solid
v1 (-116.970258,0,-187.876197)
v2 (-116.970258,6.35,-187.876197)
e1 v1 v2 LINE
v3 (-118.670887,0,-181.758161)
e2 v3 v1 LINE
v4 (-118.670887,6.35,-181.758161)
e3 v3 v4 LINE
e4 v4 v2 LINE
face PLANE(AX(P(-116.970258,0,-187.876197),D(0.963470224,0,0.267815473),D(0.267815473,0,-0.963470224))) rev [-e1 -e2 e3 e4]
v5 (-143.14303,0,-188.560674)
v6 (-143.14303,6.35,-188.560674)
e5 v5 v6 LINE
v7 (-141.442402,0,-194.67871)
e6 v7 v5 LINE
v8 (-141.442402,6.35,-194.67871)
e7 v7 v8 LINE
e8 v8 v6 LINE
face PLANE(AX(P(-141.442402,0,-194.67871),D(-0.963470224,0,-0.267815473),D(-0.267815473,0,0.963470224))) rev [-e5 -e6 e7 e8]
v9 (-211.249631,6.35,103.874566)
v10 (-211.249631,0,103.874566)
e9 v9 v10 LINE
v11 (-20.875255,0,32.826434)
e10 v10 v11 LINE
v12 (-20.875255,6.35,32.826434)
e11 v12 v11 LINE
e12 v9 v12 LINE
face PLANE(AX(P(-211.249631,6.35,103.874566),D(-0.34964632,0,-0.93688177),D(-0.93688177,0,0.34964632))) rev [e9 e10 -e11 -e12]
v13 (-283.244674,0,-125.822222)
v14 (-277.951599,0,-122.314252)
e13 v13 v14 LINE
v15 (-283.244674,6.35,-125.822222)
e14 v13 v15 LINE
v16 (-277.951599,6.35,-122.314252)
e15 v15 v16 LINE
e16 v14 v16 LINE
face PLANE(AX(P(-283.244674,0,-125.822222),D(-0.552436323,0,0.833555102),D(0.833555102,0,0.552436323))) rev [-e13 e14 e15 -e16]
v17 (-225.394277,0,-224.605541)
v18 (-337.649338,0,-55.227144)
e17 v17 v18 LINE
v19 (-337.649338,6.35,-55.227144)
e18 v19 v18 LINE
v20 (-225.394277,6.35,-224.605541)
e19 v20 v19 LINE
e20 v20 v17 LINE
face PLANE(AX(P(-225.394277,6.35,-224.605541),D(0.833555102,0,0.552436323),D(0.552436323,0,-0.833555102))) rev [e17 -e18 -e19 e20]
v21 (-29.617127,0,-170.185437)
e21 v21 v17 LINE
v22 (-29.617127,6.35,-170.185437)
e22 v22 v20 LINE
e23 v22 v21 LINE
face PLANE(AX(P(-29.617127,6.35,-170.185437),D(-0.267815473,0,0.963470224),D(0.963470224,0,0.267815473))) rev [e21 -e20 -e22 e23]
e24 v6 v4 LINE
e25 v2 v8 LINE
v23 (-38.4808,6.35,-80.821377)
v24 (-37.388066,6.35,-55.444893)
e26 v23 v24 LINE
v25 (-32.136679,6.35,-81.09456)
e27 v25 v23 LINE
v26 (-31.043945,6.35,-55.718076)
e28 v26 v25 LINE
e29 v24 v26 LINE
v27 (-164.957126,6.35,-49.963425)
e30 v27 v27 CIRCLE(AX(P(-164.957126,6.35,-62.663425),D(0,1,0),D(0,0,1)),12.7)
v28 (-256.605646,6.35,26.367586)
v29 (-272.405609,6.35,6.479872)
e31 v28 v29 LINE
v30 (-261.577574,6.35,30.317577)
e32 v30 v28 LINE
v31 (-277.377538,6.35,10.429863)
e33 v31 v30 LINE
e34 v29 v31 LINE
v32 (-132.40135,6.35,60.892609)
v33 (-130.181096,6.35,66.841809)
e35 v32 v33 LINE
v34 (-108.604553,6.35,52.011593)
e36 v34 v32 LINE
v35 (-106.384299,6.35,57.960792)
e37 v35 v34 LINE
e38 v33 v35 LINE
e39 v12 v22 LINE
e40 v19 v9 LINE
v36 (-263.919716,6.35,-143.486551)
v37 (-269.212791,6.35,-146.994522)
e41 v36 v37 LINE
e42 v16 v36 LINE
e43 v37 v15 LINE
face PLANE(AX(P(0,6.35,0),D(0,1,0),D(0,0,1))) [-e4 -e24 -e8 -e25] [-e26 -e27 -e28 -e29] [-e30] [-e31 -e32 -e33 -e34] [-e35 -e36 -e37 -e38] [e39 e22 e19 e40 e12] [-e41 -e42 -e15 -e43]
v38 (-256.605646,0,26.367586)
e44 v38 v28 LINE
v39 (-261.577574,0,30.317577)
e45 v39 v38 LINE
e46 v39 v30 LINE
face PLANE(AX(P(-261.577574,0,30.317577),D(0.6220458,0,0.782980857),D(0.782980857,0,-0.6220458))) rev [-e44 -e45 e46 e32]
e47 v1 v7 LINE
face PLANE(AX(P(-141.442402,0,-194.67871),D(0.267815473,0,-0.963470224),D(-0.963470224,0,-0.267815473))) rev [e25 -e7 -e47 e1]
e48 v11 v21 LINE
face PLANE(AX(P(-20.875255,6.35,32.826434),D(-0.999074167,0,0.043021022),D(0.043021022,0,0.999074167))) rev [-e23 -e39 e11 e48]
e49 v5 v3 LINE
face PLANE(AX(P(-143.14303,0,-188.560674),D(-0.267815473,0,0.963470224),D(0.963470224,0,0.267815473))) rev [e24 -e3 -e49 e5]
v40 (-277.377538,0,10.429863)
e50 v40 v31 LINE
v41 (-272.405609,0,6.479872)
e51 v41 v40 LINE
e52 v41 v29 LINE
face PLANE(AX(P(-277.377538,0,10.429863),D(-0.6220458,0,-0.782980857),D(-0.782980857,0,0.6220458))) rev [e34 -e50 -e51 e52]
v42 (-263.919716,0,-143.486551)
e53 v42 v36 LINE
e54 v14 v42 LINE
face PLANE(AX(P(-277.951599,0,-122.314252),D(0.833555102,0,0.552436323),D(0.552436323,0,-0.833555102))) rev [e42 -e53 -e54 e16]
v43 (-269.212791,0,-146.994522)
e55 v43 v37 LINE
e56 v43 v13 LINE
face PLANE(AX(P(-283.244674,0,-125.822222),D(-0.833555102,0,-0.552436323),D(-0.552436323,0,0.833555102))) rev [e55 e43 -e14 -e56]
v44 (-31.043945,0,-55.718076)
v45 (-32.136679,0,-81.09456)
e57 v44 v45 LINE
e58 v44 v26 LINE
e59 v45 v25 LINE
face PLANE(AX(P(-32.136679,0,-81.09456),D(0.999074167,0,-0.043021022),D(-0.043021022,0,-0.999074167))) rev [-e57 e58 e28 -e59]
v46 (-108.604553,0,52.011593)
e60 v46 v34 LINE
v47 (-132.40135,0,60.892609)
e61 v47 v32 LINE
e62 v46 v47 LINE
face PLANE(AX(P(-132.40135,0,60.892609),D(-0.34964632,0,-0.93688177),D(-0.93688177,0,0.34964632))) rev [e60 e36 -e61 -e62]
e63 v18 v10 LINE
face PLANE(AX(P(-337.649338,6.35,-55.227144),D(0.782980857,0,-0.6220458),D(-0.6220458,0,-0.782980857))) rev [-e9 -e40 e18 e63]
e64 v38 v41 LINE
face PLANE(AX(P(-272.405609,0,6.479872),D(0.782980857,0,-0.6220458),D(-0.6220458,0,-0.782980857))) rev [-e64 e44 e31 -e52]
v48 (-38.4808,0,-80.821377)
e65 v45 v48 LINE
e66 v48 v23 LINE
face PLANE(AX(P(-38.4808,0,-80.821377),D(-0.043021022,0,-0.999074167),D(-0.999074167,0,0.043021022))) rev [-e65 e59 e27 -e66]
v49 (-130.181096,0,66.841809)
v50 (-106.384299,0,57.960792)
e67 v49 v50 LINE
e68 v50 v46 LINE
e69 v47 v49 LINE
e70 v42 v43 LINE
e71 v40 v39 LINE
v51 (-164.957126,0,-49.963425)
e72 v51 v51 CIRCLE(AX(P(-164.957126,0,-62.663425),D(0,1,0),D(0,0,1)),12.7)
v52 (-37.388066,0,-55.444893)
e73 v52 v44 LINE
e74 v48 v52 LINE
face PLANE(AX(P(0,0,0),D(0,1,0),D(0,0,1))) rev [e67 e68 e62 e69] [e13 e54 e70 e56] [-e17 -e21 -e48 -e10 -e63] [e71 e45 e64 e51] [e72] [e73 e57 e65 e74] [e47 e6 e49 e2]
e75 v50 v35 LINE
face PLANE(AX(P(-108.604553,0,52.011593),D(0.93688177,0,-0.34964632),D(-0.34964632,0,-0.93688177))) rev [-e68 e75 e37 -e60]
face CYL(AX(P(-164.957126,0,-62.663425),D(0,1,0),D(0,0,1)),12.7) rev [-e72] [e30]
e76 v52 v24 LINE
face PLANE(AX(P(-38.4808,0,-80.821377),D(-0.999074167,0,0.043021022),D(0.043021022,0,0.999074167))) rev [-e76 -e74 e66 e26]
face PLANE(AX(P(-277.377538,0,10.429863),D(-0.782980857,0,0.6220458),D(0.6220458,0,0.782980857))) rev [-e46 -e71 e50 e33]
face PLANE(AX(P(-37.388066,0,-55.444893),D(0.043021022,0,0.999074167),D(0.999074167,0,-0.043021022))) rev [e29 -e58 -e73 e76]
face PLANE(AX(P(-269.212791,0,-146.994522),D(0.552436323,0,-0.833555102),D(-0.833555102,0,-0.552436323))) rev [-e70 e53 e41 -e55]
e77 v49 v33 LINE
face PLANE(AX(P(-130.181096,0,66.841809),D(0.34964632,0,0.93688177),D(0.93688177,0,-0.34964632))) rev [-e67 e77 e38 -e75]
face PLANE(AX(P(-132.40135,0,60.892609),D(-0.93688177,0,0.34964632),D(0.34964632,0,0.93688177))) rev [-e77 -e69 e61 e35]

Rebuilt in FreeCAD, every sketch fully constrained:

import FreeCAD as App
import Part
import Sketcher
from FreeCAD import Vector
Q = App.Units.Quantity

doc = App.newDocument("Part")
body = doc.addObject("PartDesign::Body", "Body")

sketch1 = body.newObject("Sketcher::SketchObject", "Sketch")
sketch1.AttachmentSupport = (doc.getObject("XZ_Plane"), [""])
sketch1.MapMode = "FlatFace"
sketch1.addGeometry(Part.LineSegment(Vector(-21, 33, 0), Vector(-30, -170, 0)), False)
sketch1.addGeometry(Part.LineSegment(Vector(-30, -170, 0), Vector(-225, -225, 0)), False)
sketch1.addGeometry(Part.LineSegment(Vector(-225, -225, 0), Vector(-338, -55, 0)), False)
sketch1.addGeometry(Part.LineSegment(Vector(-338, -55, 0), Vector(-211, 104, 0)), False)
sketch1.addGeometry(Part.LineSegment(Vector(-211, 104, 0), Vector(-21, 33, 0)), False)
sketch1.addConstraint(Sketcher.Constraint("Coincident", 0, 2, 1, 1))
sketch1.addConstraint(Sketcher.Constraint("Coincident", 1, 2, 2, 1))
sketch1.addConstraint(Sketcher.Constraint("Coincident", 2, 2, 3, 1))
sketch1.addConstraint(Sketcher.Constraint("Coincident", 3, 2, 4, 1))
sketch1.addConstraint(Sketcher.Constraint("Coincident", 4, 2, 0, 1))
sketch1.addConstraint(Sketcher.Constraint("Equal", 0, 1))
sketch1.addConstraint(Sketcher.Constraint("Equal", 1, 2))
sketch1.addConstraint(Sketcher.Constraint("Equal", 2, 3))
sketch1.addConstraint(Sketcher.Constraint("Equal", 3, 4))
sketch1.addConstraint(Sketcher.Constraint("Distance", 0, Q("8 in")))
sketch1.addConstraint(Sketcher.Constraint("DistanceY", 1, 2, -1, 1, Q("224.605541 mm")))
sketch1.addConstraint(Sketcher.Constraint("DistanceX", 3, 2, -1, 1, Q("211.249631 mm")))
sketch1.addConstraint(Sketcher.Constraint("DistanceX", 1, 2, 0, 2, Q("195.77715 mm")))
sketch1.addConstraint(Sketcher.Constraint("DistanceX", 2, 2, 1, 2, Q("112.255061 mm")))
sketch1.addConstraint(Sketcher.Constraint("DistanceY", 2, 2, 3, 2, Q("159.10171 mm")))
pad1 = body.newObject("PartDesign::Pad", "Pad")
pad1.Profile = sketch1
pad1.Length = Q("0.25 in")
pad1.Reversed = True

sketch2 = body.newObject("Sketcher::SketchObject", "Sketch001")
sketch2.AttachmentSupport = (doc.getObject("XZ_Plane"), [""])
sketch2.MapMode = "FlatFace"
sketch2.AttachmentOffset = App.Placement(Vector(0, 0, -0.25 * 25.4), App.Rotation())
sketch2.addGeometry(Part.LineSegment(Vector(-109, 52, 0), Vector(-132, 61, 0)), False)
sketch2.addGeometry(Part.LineSegment(Vector(-132, 61, 0), Vector(-130, 67, 0)), False)
sketch2.addGeometry(Part.LineSegment(Vector(-130, 67, 0), Vector(-106, 58, 0)), False)
sketch2.addGeometry(Part.LineSegment(Vector(-106, 58, 0), Vector(-109, 52, 0)), False)
sketch2.addGeometry(Part.LineSegment(Vector(-277, 10, 0), Vector(-262, 30, 0)), False)
sketch2.addGeometry(Part.LineSegment(Vector(-262, 30, 0), Vector(-257, 26, 0)), False)
sketch2.addGeometry(Part.LineSegment(Vector(-257, 26, 0), Vector(-272, 6, 0)), False)
sketch2.addGeometry(Part.LineSegment(Vector(-272, 6, 0), Vector(-277, 10, 0)), False)
sketch2.addGeometry(Part.LineSegment(Vector(-283, -126, 0), Vector(-278, -122, 0)), False)
sketch2.addGeometry(Part.LineSegment(Vector(-278, -122, 0), Vector(-264, -143, 0)), False)
sketch2.addGeometry(Part.LineSegment(Vector(-264, -143, 0), Vector(-269, -147, 0)), False)
sketch2.addGeometry(Part.LineSegment(Vector(-269, -147, 0), Vector(-283, -126, 0)), False)
sketch2.addGeometry(Part.LineSegment(Vector(-117, -188, 0), Vector(-141, -195, 0)), False)
sketch2.addGeometry(Part.LineSegment(Vector(-141, -195, 0), Vector(-143, -189, 0)), False)
sketch2.addGeometry(Part.LineSegment(Vector(-143, -189, 0), Vector(-119, -182, 0)), False)
sketch2.addGeometry(Part.LineSegment(Vector(-119, -182, 0), Vector(-117, -188, 0)), False)
sketch2.addGeometry(Part.LineSegment(Vector(-32, -81, 0), Vector(-38, -81, 0)), False)
sketch2.addGeometry(Part.LineSegment(Vector(-38, -81, 0), Vector(-37, -55, 0)), False)
sketch2.addGeometry(Part.LineSegment(Vector(-37, -55, 0), Vector(-31, -56, 0)), False)
sketch2.addGeometry(Part.LineSegment(Vector(-31, -56, 0), Vector(-32, -81, 0)), False)
sketch2.addConstraint(Sketcher.Constraint("Coincident", 0, 2, 1, 1))
sketch2.addConstraint(Sketcher.Constraint("Coincident", 1, 2, 2, 1))
sketch2.addConstraint(Sketcher.Constraint("Coincident", 2, 2, 3, 1))
sketch2.addConstraint(Sketcher.Constraint("Coincident", 3, 2, 0, 1))
sketch2.addConstraint(Sketcher.Constraint("Coincident", 4, 2, 5, 1))
sketch2.addConstraint(Sketcher.Constraint("Coincident", 5, 2, 6, 1))
sketch2.addConstraint(Sketcher.Constraint("Coincident", 6, 2, 7, 1))
sketch2.addConstraint(Sketcher.Constraint("Coincident", 7, 2, 4, 1))
sketch2.addConstraint(Sketcher.Constraint("Coincident", 8, 2, 9, 1))
sketch2.addConstraint(Sketcher.Constraint("Coincident", 9, 2, 10, 1))
sketch2.addConstraint(Sketcher.Constraint("Coincident", 10, 2, 11, 1))
sketch2.addConstraint(Sketcher.Constraint("Coincident", 11, 2, 8, 1))
sketch2.addConstraint(Sketcher.Constraint("Coincident", 12, 2, 13, 1))
sketch2.addConstraint(Sketcher.Constraint("Coincident", 13, 2, 14, 1))
sketch2.addConstraint(Sketcher.Constraint("Coincident", 14, 2, 15, 1))
sketch2.addConstraint(Sketcher.Constraint("Coincident", 15, 2, 12, 1))
sketch2.addConstraint(Sketcher.Constraint("Coincident", 16, 2, 17, 1))
sketch2.addConstraint(Sketcher.Constraint("Coincident", 17, 2, 18, 1))
sketch2.addConstraint(Sketcher.Constraint("Coincident", 18, 2, 19, 1))
sketch2.addConstraint(Sketcher.Constraint("Coincident", 19, 2, 16, 1))
sketch2.addConstraint(Sketcher.Constraint("Perpendicular", 0, 1))
sketch2.addConstraint(Sketcher.Constraint("Perpendicular", 1, 2))
sketch2.addConstraint(Sketcher.Constraint("Perpendicular", 2, 3))
sketch2.addConstraint(Sketcher.Constraint("Perpendicular", 4, 5))
sketch2.addConstraint(Sketcher.Constraint("Perpendicular", 5, 6))
sketch2.addConstraint(Sketcher.Constraint("Perpendicular", 6, 7))
sketch2.addConstraint(Sketcher.Constraint("Perpendicular", 8, 9))
sketch2.addConstraint(Sketcher.Constraint("Perpendicular", 9, 10))
sketch2.addConstraint(Sketcher.Constraint("Perpendicular", 10, 11))
sketch2.addConstraint(Sketcher.Constraint("Perpendicular", 12, 13))
sketch2.addConstraint(Sketcher.Constraint("Perpendicular", 13, 14))
sketch2.addConstraint(Sketcher.Constraint("Perpendicular", 14, 15))
sketch2.addConstraint(Sketcher.Constraint("Perpendicular", 16, 17))
sketch2.addConstraint(Sketcher.Constraint("Perpendicular", 17, 18))
sketch2.addConstraint(Sketcher.Constraint("Perpendicular", 18, 19))
sketch2.addConstraint(Sketcher.Constraint("Equal", 2, 4))
sketch2.addConstraint(Sketcher.Constraint("Equal", 3, 5))
sketch2.addConstraint(Sketcher.Constraint("Equal", 7, 8))
sketch2.addConstraint(Sketcher.Constraint("Equal", 6, 9))
sketch2.addConstraint(Sketcher.Constraint("Equal", 11, 12))
sketch2.addConstraint(Sketcher.Constraint("Equal", 10, 13))
sketch2.addConstraint(Sketcher.Constraint("Equal", 15, 16))
sketch2.addConstraint(Sketcher.Constraint("Equal", 14, 17))
sketch2.addConstraint(Sketcher.Constraint("Distance", 0, Q("1 in")))
sketch2.addConstraint(Sketcher.Constraint("Distance", 1, Q("0.25 in")))
sketch2.addConstraint(Sketcher.Constraint("DistanceX", 2, 2, -1, 1, Q("106.384299 mm")))
sketch2.addConstraint(Sketcher.Constraint("DistanceX", 8, 2, -1, 1, Q("277.951599 mm")))
sketch2.addConstraint(Sketcher.Constraint("DistanceX", 16, 2, -1, 1, Q("38.4808 mm")))
sketch2.addConstraint(Sketcher.Constraint("DistanceY", 0, 2, 1, 2, Q("5.949199 mm")))
sketch2.addConstraint(Sketcher.Constraint("DistanceY", 9, 2, 8, 2, Q("21.1723 mm")))
sketch2.addConstraint(Sketcher.Constraint("DistanceX", 12, 2, 16, 2, Q("102.961602 mm")))
sketch2.addConstraint(Sketcher.Constraint("DistanceY", 16, 2, 18, 2, Q("25.1033 mm")))
sketch2.addConstraint(Sketcher.Constraint("DistanceY", 14, 2, 19, 2, Q("100.663601 mm")))
sketch2.addConstraint(Sketcher.Constraint("DistanceY", -1, 1, 0, 2, Q("60.892609 mm")))
sketch2.addConstraint(Sketcher.Constraint("DistanceX", 6, 2, -1, 1, Q("272.405609 mm")))
sketch2.addConstraint(Sketcher.Constraint("DistanceY", 8, 2, -1, 1, Q("122.314252 mm")))
sketch2.addConstraint(Sketcher.Constraint("DistanceY", 12, 2, -1, 1, Q("194.67871 mm")))
sketch2.addConstraint(Sketcher.Constraint("DistanceX", 13, 2, -1, 1, Q("143.14303 mm")))
sketch2.addConstraint(Sketcher.Constraint("DistanceX", 4, 2, 1, 2, Q("131.396478 mm")))
sketch2.addConstraint(Sketcher.Constraint("DistanceY", 4, 2, 1, 2, Q("36.524232 mm")))
pocket1 = body.newObject("PartDesign::Pocket", "Pocket")
pocket1.Profile = sketch2
pocket1.Type = "ThroughAll"
pocket1.Reversed = True

sketch3 = body.newObject("Sketcher::SketchObject", "Sketch002")
sketch3.AttachmentSupport = (doc.getObject("XZ_Plane"), [""])
sketch3.MapMode = "FlatFace"
sketch3.AttachmentOffset = App.Placement(Vector(0, 0, -0.25 * 25.4), App.Rotation())
sketch3.addGeometry(Part.Circle(Vector(-165, -63, 0), Vector(0, 0, 1), 13), False)
sketch3.addConstraint(Sketcher.Constraint("Diameter", 0, Q("1 in")))
sketch3.addConstraint(Sketcher.Constraint("DistanceX", 0, 3, -1, 1, Q("164.957126 mm")))
sketch3.addConstraint(Sketcher.Constraint("DistanceY", 0, 3, -1, 1, Q("62.663425 mm")))
pocket2 = body.newObject("PartDesign::Pocket", "Pocket001")
pocket2.Profile = sketch3
pocket2.Type = "ThroughAll"
pocket2.Reversed = True

doc.recompute()
